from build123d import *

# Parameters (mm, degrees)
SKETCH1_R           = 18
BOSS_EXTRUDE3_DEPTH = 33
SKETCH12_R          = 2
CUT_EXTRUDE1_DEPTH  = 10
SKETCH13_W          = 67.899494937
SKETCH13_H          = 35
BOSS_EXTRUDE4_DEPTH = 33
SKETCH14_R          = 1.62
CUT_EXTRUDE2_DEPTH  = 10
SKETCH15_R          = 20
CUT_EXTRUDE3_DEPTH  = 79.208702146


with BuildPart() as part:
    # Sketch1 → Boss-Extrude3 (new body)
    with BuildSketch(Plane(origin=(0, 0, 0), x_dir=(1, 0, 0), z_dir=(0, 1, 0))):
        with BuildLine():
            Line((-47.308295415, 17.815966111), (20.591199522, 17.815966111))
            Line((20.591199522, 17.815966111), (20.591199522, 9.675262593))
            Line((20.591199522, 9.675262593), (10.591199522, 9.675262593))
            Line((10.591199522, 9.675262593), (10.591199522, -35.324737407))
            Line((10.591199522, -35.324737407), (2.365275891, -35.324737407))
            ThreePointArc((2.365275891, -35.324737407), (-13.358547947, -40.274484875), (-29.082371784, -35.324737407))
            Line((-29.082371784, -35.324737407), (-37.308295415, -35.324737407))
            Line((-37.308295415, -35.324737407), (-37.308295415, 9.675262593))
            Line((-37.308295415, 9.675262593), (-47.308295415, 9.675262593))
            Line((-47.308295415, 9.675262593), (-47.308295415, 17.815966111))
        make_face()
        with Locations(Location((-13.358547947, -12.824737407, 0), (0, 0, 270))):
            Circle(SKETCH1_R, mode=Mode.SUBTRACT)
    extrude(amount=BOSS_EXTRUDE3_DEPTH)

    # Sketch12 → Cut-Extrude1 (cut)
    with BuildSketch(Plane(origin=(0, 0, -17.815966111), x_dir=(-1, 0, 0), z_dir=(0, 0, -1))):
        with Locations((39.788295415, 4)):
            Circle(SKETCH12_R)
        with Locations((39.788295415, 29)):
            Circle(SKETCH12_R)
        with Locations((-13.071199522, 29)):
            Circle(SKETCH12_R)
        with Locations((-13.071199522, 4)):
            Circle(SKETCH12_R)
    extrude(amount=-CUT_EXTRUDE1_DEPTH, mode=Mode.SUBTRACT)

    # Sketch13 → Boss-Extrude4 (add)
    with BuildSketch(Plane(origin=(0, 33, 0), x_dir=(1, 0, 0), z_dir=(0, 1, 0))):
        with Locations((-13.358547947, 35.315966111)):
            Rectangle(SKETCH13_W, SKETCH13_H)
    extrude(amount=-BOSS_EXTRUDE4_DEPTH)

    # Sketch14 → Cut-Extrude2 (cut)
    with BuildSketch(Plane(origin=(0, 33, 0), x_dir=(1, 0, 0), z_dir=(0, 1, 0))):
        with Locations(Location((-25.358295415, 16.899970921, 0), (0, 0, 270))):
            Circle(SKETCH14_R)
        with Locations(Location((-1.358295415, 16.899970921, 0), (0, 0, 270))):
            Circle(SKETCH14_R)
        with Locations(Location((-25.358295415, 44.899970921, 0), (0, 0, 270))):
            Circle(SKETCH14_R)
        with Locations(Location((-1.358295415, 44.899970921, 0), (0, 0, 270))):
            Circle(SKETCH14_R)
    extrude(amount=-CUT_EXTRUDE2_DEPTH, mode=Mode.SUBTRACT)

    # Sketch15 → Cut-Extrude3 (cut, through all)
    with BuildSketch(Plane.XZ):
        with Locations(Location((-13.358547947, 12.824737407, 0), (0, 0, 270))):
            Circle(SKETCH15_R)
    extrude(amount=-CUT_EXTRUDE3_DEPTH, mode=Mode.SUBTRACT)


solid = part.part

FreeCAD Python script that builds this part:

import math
import FreeCAD as App
import Part
import Sketcher
from FreeCAD import Vector


def add_polygon(sketch, points):
    """Adds a closed chain of lines whose ends are joined by coincident constraints."""
    first, n = sketch.GeometryCount, len(points)
    for a, b in zip(points, points[1:] + points[:1]):
        sketch.addGeometry(Part.LineSegment(App.Vector(*a, 0), App.Vector(*b, 0)), False)
    for i in range(n):
        sketch.addConstraint(Sketcher.Constraint("Coincident", first + i, 2, first + (i + 1) % n, 1))

doc = App.newDocument("Part")
body = doc.addObject("PartDesign::Body", "Body")

sketch1 = body.newObject("Sketcher::SketchObject", "Sketch")
sketch1.AttachmentSupport = (doc.getObject("XZ_Plane"), [""])
sketch1.MapMode = "FlatFace"
sketch1.addGeometry(Part.LineSegment(Vector(20.5912, -17.815966, 0), Vector(-47.308295, -17.815966, 0)), False)
sketch1.addGeometry(Part.LineSegment(Vector(-47.308295, -17.815966, 0), Vector(-47.308295, -9.675263, 0)), False)
sketch1.addGeometry(Part.LineSegment(Vector(-47.308295, -9.675263, 0), Vector(-37.308295, -9.675263, 0)), False)
sketch1.addGeometry(Part.LineSegment(Vector(-37.308295, -9.675263, 0), Vector(-37.308295, 35.324737, 0)), False)
sketch1.addGeometry(Part.LineSegment(Vector(-37.308295, 35.324737, 0), Vector(-29.082372, 35.324737, 0)), False)
sketch1.addGeometry(Part.ArcOfCircle(Part.Circle(Vector(-13.358548, 12.824737, 0), Vector(0, 0, 1), 27.449747), math.radians(55.052741), math.radians(124.947259)), False)
sketch1.addGeometry(Part.LineSegment(Vector(2.365276, 35.324737, 0), Vector(10.5912, 35.324737, 0)), False)
sketch1.addGeometry(Part.LineSegment(Vector(10.5912, 35.324737, 0), Vector(10.5912, -9.675263, 0)), False)
sketch1.addGeometry(Part.LineSegment(Vector(10.5912, -9.675263, 0), Vector(20.5912, -9.675263, 0)), False)
sketch1.addGeometry(Part.LineSegment(Vector(20.5912, -9.675263, 0), Vector(20.5912, -17.815966, 0)), False)
sketch1.addGeometry(Part.Circle(Vector(-13.358548, 12.824737, 0), Vector(0, 0, 1), 18), False)
sketch1.addConstraint(Sketcher.Constraint("Coincident", 0, 2, 1, 1))
sketch1.addConstraint(Sketcher.Constraint("Coincident", 1, 2, 2, 1))
sketch1.addConstraint(Sketcher.Constraint("Coincident", 2, 2, 3, 1))
sketch1.addConstraint(Sketcher.Constraint("Coincident", 3, 2, 4, 1))
sketch1.addConstraint(Sketcher.Constraint("Coincident", 4, 2, 5, 2))
sketch1.addConstraint(Sketcher.Constraint("Coincident", 5, 1, 6, 1))
sketch1.addConstraint(Sketcher.Constraint("Coincident", 6, 2, 7, 1))
sketch1.addConstraint(Sketcher.Constraint("Coincident", 7, 2, 8, 1))
sketch1.addConstraint(Sketcher.Constraint("Coincident", 8, 2, 9, 1))
sketch1.addConstraint(Sketcher.Constraint("Coincident", 9, 2, 0, 1))
sketch1.addConstraint(Sketcher.Constraint("Horizontal", 0))
sketch1.addConstraint(Sketcher.Constraint("Vertical", 1))
sketch1.addConstraint(Sketcher.Constraint("Horizontal", 2))
sketch1.addConstraint(Sketcher.Constraint("Vertical", 3))
sketch1.addConstraint(Sketcher.Constraint("Horizontal", 4))
sketch1.addConstraint(Sketcher.Constraint("Horizontal", 6))
sketch1.addConstraint(Sketcher.Constraint("Vertical", 7))
sketch1.addConstraint(Sketcher.Constraint("Horizontal", 8))
sketch1.addConstraint(Sketcher.Constraint("Vertical", 9))
sketch1.addConstraint(Sketcher.Constraint("Coincident", 10, 3, 5, 3))
sketch1.addConstraint(Sketcher.Constraint("Horizontal", 4, 2, 5, 1))
sketch1.addConstraint(Sketcher.Constraint("Horizontal", 2, 2, 7, 2))
sketch1.addConstraint(Sketcher.Constraint("Equal", 4, 6))
sketch1.addConstraint(Sketcher.Constraint("Equal", 2, 8))
sketch1.addConstraint(Sketcher.Constraint("Diameter", 10, 36.0))
sketch1.addConstraint(Sketcher.Constraint("DistanceX", 2, 1, 2, 2, 10.0))
sketch1.addConstraint(Sketcher.Constraint("DistanceY", 3, 1, 3, 2, 45.0))
sketch1.addConstraint(Sketcher.Constraint("DistanceY", 1, 2, 5, 3, 22.5))
sketch1.addConstraint(Sketcher.Constraint("Radius", 5, 27.449747))
sketch1.addConstraint(Sketcher.Constraint("DistanceX", -1, 1, 6, 2, 10.5912))
sketch1.addConstraint(Sketcher.Constraint("DistanceX", 0, 2, 0, 1, 67.899495))
sketch1.addConstraint(Sketcher.Constraint("DistanceY", 1, 1, 1, 2, 8.140704))
sketch1.addConstraint(Sketcher.Constraint("DistanceY", -1, 1, 5, 3, 12.824737))
pad1 = body.newObject("PartDesign::Pad", "Pad")
pad1.Profile = sketch1
pad1.Length = 33
pad1.Reversed = True

sketch2 = body.newObject("Sketcher::SketchObject", "Sketch001")
sketch2.AttachmentSupport = (doc.getObject("XY_Plane"), [""])
sketch2.MapMode = "FlatFace"
sketch2.AttachmentOffset = App.Placement(Vector(0, 0, -17.815966), App.Rotation())
sketch2.addGeometry(Part.Circle(Vector(-39.788295, 4, 0), Vector(0, 0, 1), 2), False)
sketch2.addGeometry(Part.Circle(Vector(-39.788295, 29, 0), Vector(0, 0, 1), 2), False)
sketch2.addGeometry(Part.Circle(Vector(13.0712, 29, 0), Vector(0, 0, 1), 2), False)
sketch2.addGeometry(Part.Circle(Vector(13.0712, 4, 0), Vector(0, 0, 1), 2), False)
sketch2.addConstraint(Sketcher.Constraint("Equal", 0, 1))
sketch2.addConstraint(Sketcher.Constraint("Equal", 1, 2))
sketch2.addConstraint(Sketcher.Constraint("Equal", 2, 3))
sketch2.addConstraint(Sketcher.Constraint("Horizontal", 1, 3, 2, 3))
sketch2.addConstraint(Sketcher.Constraint("Horizontal", 0, 3, 3, 3))
sketch2.addConstraint(Sketcher.Constraint("Vertical", 0, 3, 1, 3))
sketch2.addConstraint(Sketcher.Constraint("Vertical", 2, 3, 3, 3))
sketch2.addConstraint(Sketcher.Constraint("Diameter", 0, 4.0))
sketch2.addConstraint(Sketcher.Constraint("DistanceY", -1, 1, 0, 3, 4.0))
sketch2.addConstraint(Sketcher.Constraint("DistanceY", -1, 1, 1, 3, 29.0))
sketch2.addConstraint(Sketcher.Constraint("DistanceX", -1, 1, 2, 3, 13.0712))
sketch2.addConstraint(Sketcher.Constraint("DistanceX", 0, 3, -1, 1, 39.788295))
pocket1 = body.newObject("PartDesign::Pocket", "Pocket")
pocket1.Profile = sketch2
pocket1.Length = 10
pocket1.Reversed = True

sketch3 = body.newObject("Sketcher::SketchObject", "Sketch002")
sketch3.AttachmentSupport = (doc.getObject("XZ_Plane"), [""])
sketch3.MapMode = "FlatFace"
sketch3.AttachmentOffset = App.Placement(Vector(0, 0, -33), App.Rotation())
add_polygon(sketch3, [(-47.308295, -52.815966), (-47.308295, -17.815966), (20.5912, -17.815966), (20.5912, -52.815966)])
sketch3.addConstraint(Sketcher.Constraint("Vertical", 0))
sketch3.addConstraint(Sketcher.Constraint("Horizontal", 1))
sketch3.addConstraint(Sketcher.Constraint("Vertical", 2))
sketch3.addConstraint(Sketcher.Constraint("Horizontal", 3))
sketch3.addConstraint(Sketcher.Constraint("DistanceY", 0, 1, 0, 2, 35.0))
sketch3.addConstraint(Sketcher.Constraint("DistanceX", -1, 1, 1, 2, 20.5912))
sketch3.addConstraint(Sketcher.Constraint("DistanceX", 1, 1, 1, 2, 67.899495))
sketch3.addConstraint(Sketcher.Constraint("DistanceY", 0, 2, -1, 1, 17.815966))
pad2 = body.newObject("PartDesign::Pad", "Pad001")
pad2.Profile = sketch3
pad2.Length = 33

sketch4 = body.newObject("Sketcher::SketchObject", "Sketch003")
sketch4.AttachmentSupport = (doc.getObject("XZ_Plane"), [""])
sketch4.MapMode = "FlatFace"
sketch4.AttachmentOffset = App.Placement(Vector(0, 0, -33), App.Rotation())
sketch4.addGeometry(Part.Circle(Vector(-25.358295, -16.899971, 0), Vector(0, 0, 1), 1.62), False)
sketch4.addGeometry(Part.Circle(Vector(-1.358295, -16.899971, 0), Vector(0, 0, 1), 1.62), False)
sketch4.addGeometry(Part.Circle(Vector(-25.358295, -44.899971, 0), Vector(0, 0, 1), 1.62), False)
sketch4.addGeometry(Part.Circle(Vector(-1.358295, -44.899971, 0), Vector(0, 0, 1), 1.62), False)
sketch4.addConstraint(Sketcher.Constraint("Equal", 0, 1))
sketch4.addConstraint(Sketcher.Constraint("Equal", 1, 2))
sketch4.addConstraint(Sketcher.Constraint("Equal", 2, 3))
sketch4.addConstraint(Sketcher.Constraint("Horizontal", 0, 3, 1, 3))
sketch4.addConstraint(Sketcher.Constraint("Horizontal", 2, 3, 3, 3))
sketch4.addConstraint(Sketcher.Constraint("Vertical", 0, 3, 2, 3))
sketch4.addConstraint(Sketcher.Constraint("Vertical", 1, 3, 3, 3))
sketch4.addConstraint(Sketcher.Constraint("Diameter", 0, 3.24))
sketch4.addConstraint(Sketcher.Constraint("DistanceX", 0, 3, 1, 3, 24.0))
sketch4.addConstraint(Sketcher.Constraint("DistanceY", 2, 3, 0, 3, 28.0))
sketch4.addConstraint(Sketcher.Constraint("DistanceY", 0, 3, -1, 1, 16.899971))
sketch4.addConstraint(Sketcher.Constraint("DistanceX", 0, 3, -1, 1, 25.358295))
pocket2 = body.newObject("PartDesign::Pocket", "Pocket001")
pocket2.Profile = sketch4
pocket2.Length = 10
pocket2.Reversed = True

sketch5 = body.newObject("Sketcher::SketchObject", "Sketch004")
sketch5.AttachmentSupport = (doc.getObject("XZ_Plane"), [""])
sketch5.MapMode = "FlatFace"
sketch5.addGeometry(Part.Circle(Vector(-13.358548, 12.824737, 0), Vector(0, 0, 1), 20), False)
sketch5.addConstraint(Sketcher.Constraint("Diameter", 0, 40.0))
sketch5.addConstraint(Sketcher.Constraint("DistanceX", 0, 3, -1, 1, 13.358548))
sketch5.addConstraint(Sketcher.Constraint("DistanceY", -1, 1, 0, 3, 12.824737))
pocket3 = body.newObject("PartDesign::Pocket", "Pocket002")
pocket3.Profile = sketch5
pocket3.Type = "ThroughAll"

doc.recompute()
